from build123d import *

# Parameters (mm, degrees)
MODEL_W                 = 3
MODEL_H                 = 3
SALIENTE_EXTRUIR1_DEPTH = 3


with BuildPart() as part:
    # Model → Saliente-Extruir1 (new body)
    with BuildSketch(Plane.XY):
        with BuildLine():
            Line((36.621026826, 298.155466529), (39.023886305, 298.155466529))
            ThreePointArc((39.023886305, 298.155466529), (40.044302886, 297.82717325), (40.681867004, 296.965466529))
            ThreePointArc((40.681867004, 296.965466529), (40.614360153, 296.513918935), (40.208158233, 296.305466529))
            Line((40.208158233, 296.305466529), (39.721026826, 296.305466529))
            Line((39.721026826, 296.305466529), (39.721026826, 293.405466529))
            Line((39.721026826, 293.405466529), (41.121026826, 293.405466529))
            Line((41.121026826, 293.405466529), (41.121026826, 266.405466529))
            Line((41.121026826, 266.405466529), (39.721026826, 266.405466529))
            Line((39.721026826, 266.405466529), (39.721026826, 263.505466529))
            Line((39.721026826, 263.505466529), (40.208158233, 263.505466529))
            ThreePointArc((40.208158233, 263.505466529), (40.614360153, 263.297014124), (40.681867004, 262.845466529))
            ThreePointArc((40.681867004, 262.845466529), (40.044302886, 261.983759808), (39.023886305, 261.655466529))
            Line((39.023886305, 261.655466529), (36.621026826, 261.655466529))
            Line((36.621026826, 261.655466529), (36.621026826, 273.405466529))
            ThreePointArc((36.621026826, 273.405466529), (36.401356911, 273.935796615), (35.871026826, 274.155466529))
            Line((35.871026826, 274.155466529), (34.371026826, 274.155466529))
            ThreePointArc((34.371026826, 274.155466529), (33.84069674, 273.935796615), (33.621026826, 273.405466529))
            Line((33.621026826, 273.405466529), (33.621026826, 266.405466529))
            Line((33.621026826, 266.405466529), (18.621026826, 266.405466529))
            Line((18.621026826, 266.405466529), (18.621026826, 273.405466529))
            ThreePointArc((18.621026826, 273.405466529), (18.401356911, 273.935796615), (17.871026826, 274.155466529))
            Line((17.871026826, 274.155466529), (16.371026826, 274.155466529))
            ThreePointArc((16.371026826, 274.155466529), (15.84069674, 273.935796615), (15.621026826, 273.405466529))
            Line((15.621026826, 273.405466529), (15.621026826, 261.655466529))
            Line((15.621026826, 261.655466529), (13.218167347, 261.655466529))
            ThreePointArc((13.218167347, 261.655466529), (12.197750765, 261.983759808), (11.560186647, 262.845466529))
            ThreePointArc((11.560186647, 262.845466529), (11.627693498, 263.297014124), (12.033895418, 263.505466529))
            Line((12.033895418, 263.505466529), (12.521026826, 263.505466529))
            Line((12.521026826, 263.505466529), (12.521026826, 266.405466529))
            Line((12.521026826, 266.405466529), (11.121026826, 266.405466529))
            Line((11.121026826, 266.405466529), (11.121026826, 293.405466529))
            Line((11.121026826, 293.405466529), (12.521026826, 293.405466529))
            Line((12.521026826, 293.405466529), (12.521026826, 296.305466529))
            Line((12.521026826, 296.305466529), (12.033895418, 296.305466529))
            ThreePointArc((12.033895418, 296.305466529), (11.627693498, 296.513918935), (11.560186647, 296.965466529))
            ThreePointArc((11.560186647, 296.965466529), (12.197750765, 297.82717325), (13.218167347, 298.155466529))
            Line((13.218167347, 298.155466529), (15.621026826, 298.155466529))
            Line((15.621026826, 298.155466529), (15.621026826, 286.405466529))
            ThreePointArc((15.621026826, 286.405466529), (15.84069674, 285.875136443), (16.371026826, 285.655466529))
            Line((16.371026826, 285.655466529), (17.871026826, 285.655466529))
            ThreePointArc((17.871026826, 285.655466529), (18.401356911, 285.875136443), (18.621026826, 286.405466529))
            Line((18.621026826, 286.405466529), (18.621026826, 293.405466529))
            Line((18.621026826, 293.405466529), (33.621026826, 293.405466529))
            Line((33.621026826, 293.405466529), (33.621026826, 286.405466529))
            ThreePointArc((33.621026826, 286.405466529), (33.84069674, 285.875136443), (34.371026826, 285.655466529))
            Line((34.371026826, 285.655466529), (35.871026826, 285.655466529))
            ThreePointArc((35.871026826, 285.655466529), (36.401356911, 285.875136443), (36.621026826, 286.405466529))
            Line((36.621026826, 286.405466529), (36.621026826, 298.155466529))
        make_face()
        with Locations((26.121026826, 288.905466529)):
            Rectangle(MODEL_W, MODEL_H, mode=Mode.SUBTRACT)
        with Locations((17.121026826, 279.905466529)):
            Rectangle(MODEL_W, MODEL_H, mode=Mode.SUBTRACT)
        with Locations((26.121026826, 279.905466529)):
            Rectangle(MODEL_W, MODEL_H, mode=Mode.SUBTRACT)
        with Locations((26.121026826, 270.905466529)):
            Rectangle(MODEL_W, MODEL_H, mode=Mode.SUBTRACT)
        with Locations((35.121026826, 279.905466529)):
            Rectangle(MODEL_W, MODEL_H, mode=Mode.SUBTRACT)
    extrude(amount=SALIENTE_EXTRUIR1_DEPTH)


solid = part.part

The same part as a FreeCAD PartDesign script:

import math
import FreeCAD as App
import Part
import Sketcher
Q = App.Units.Quantity

doc = App.newDocument("Part")
params = doc.addObject("Spreadsheet::Sheet", "Params")
for row, (alias, value) in enumerate([
    ("sketch1_radius", "0.5 mm"),
    ("sketch1_width", "15 mm"),
    ("sketch1_width2", "3 mm"),
    ("sketch1_height", "7 mm"),
    ("sketch1_height2", "27 mm"),
    ("pad1_length", "3 mm"),
], start=1):
    params.set(f"A{row}", alias)
    params.set(f"B{row}", "=" + value)
    params.setAlias(f"B{row}", alias)

body = doc.addObject("PartDesign::Body", "Body")

sketch1 = body.newObject("Sketcher::SketchObject", "Sketch")
sketch1.AttachmentSupport = (doc.getObject("XY_Plane"), [""])
sketch1.MapMode = "FlatFace"
sketch1.addGeometry(Part.LineSegment(App.Vector(39.023886, 298.155467, 0), App.Vector(36.621027, 298.155467, 0)), False)
sketch1.addGeometry(Part.LineSegment(App.Vector(36.621027, 298.155467, 0), App.Vector(36.621027, 286.405467, 0)), False)
sketch1.addGeometry(Part.ArcOfCircle(Part.Circle(App.Vector(35.871027, 286.405467, 0), App.Vector(0, 0, 1), 0.75), math.radians(-90), math.radians(0)), False)
sketch1.addGeometry(Part.LineSegment(App.Vector(35.871027, 285.655467, 0), App.Vector(34.371027, 285.655467, 0)), False)
sketch1.addGeometry(Part.ArcOfCircle(Part.Circle(App.Vector(34.371027, 286.405467, 0), App.Vector(0, 0, 1), 0.75), math.radians(180), math.radians(270)), False)
sketch1.addGeometry(Part.LineSegment(App.Vector(33.621027, 286.405467, 0), App.Vector(33.621027, 293.405467, 0)), False)
sketch1.addGeometry(Part.LineSegment(App.Vector(33.621027, 293.405467, 0), App.Vector(18.621027, 293.405467, 0)), False)
sketch1.addGeometry(Part.LineSegment(App.Vector(18.621027, 293.405467, 0), App.Vector(18.621027, 286.405467, 0)), False)
sketch1.addGeometry(Part.ArcOfCircle(Part.Circle(App.Vector(17.871027, 286.405467, 0), App.Vector(0, 0, 1), 0.75), math.radians(-90), math.radians(0)), False)
sketch1.addGeometry(Part.LineSegment(App.Vector(17.871027, 285.655467, 0), App.Vector(16.371027, 285.655467, 0)), False)
sketch1.addGeometry(Part.ArcOfCircle(Part.Circle(App.Vector(16.371027, 286.405467, 0), App.Vector(0, 0, 1), 0.75), math.radians(180), math.radians(270)), False)
sketch1.addGeometry(Part.LineSegment(App.Vector(15.621027, 286.405467, 0), App.Vector(15.621027, 298.155467, 0)), False)
sketch1.addGeometry(Part.LineSegment(App.Vector(15.621027, 298.155467, 0), App.Vector(13.218167, 298.155467, 0)), False)
sketch1.addGeometry(Part.ArcOfCircle(Part.Circle(App.Vector(13.218167, 296.405467, 0), App.Vector(0, 0, 1), 1.75), math.radians(90), math.radians(161.337075)), False)
sketch1.addGeometry(Part.ArcOfCircle(Part.Circle(App.Vector(12.033895, 296.805467, 0), App.Vector(0, 0, 1), 0.5), math.radians(161.337075), math.radians(270)), False)
sketch1.addGeometry(Part.LineSegment(App.Vector(12.033895, 296.305467, 0), App.Vector(12.521027, 296.305467, 0)), False)
sketch1.addGeometry(Part.LineSegment(App.Vector(12.521027, 296.305467, 0), App.Vector(12.521027, 293.405467, 0)), False)
sketch1.addGeometry(Part.LineSegment(App.Vector(12.521027, 293.405467, 0), App.Vector(11.121027, 293.405467, 0)), False)
sketch1.addGeometry(Part.LineSegment(App.Vector(11.121027, 293.405467, 0), App.Vector(11.121027, 266.405467, 0)), False)
sketch1.addGeometry(Part.LineSegment(App.Vector(11.121027, 266.405467, 0), App.Vector(12.521027, 266.405467, 0)), False)
sketch1.addGeometry(Part.LineSegment(App.Vector(12.521027, 266.405467, 0), App.Vector(12.521027, 263.505467, 0)), False)
sketch1.addGeometry(Part.LineSegment(App.Vector(12.521027, 263.505467, 0), App.Vector(12.033895, 263.505467, 0)), False)
sketch1.addGeometry(Part.ArcOfCircle(Part.Circle(App.Vector(12.033895, 263.005467, 0), App.Vector(0, 0, 1), 0.5), math.radians(90), math.radians(198.662925)), False)
sketch1.addGeometry(Part.ArcOfCircle(Part.Circle(App.Vector(13.218167, 263.405467, 0), App.Vector(0, 0, 1), 1.75), math.radians(-161.337075), math.radians(-90)), False)
sketch1.addGeometry(Part.LineSegment(App.Vector(13.218167, 261.655467, 0), App.Vector(15.621027, 261.655467, 0)), False)
sketch1.addGeometry(Part.LineSegment(App.Vector(15.621027, 261.655467, 0), App.Vector(15.621027, 273.405467, 0)), False)
sketch1.addGeometry(Part.ArcOfCircle(Part.Circle(App.Vector(16.371027, 273.405467, 0), App.Vector(0, 0, 1), 0.75), math.radians(90), math.radians(180)), False)
sketch1.addGeometry(Part.LineSegment(App.Vector(16.371027, 274.155467, 0), App.Vector(17.871027, 274.155467, 0)), False)
sketch1.addGeometry(Part.ArcOfCircle(Part.Circle(App.Vector(17.871027, 273.405467, 0), App.Vector(0, 0, 1), 0.75), math.radians(0), math.radians(90)), False)
sketch1.addGeometry(Part.LineSegment(App.Vector(18.621027, 273.405467, 0), App.Vector(18.621027, 266.405467, 0)), False)
sketch1.addGeometry(Part.LineSegment(App.Vector(18.621027, 266.405467, 0), App.Vector(33.621027, 266.405467, 0)), False)
sketch1.addGeometry(Part.LineSegment(App.Vector(33.621027, 266.405467, 0), App.Vector(33.621027, 273.405467, 0)), False)
sketch1.addGeometry(Part.ArcOfCircle(Part.Circle(App.Vector(34.371027, 273.405467, 0), App.Vector(0, 0, 1), 0.75), math.radians(90), math.radians(180)), False)
sketch1.addGeometry(Part.LineSegment(App.Vector(34.371027, 274.155467, 0), App.Vector(35.871027, 274.155467, 0)), False)
sketch1.addGeometry(Part.ArcOfCircle(Part.Circle(App.Vector(35.871027, 273.405467, 0), App.Vector(0, 0, 1), 0.75), math.radians(0), math.radians(90)), False)
sketch1.addGeometry(Part.LineSegment(App.Vector(36.621027, 273.405467, 0), App.Vector(36.621027, 261.655467, 0)), False)
sketch1.addGeometry(Part.LineSegment(App.Vector(36.621027, 261.655467, 0), App.Vector(39.023886, 261.655467, 0)), False)
sketch1.addGeometry(Part.ArcOfCircle(Part.Circle(App.Vector(39.023886, 263.405467, 0), App.Vector(0, 0, 1), 1.75), math.radians(-90), math.radians(-18.662925)), False)
sketch1.addGeometry(Part.ArcOfCircle(Part.Circle(App.Vector(40.208158, 263.005467, 0), App.Vector(0, 0, 1), 0.5), math.radians(-18.662925), math.radians(90)), False)
sketch1.addGeometry(Part.LineSegment(App.Vector(40.208158, 263.505467, 0), App.Vector(39.721027, 263.505467, 0)), False)
sketch1.addGeometry(Part.LineSegment(App.Vector(39.721027, 263.505467, 0), App.Vector(39.721027, 266.405467, 0)), False)
sketch1.addGeometry(Part.LineSegment(App.Vector(39.721027, 266.405467, 0), App.Vector(41.121027, 266.405467, 0)), False)
sketch1.addGeometry(Part.LineSegment(App.Vector(41.121027, 266.405467, 0), App.Vector(41.121027, 293.405467, 0)), False)
sketch1.addGeometry(Part.LineSegment(App.Vector(41.121027, 293.405467, 0), App.Vector(39.721027, 293.405467, 0)), False)
sketch1.addGeometry(Part.LineSegment(App.Vector(39.721027, 293.405467, 0), App.Vector(39.721027, 296.305467, 0)), False)
sketch1.addGeometry(Part.LineSegment(App.Vector(39.721027, 296.305467, 0), App.Vector(40.208158, 296.305467, 0)), False)
sketch1.addGeometry(Part.ArcOfCircle(Part.Circle(App.Vector(40.208158, 296.805467, 0), App.Vector(0, 0, 1), 0.5), math.radians(-90), math.radians(18.662925)), False)
sketch1.addGeometry(Part.ArcOfCircle(Part.Circle(App.Vector(39.023886, 296.405467, 0), App.Vector(0, 0, 1), 1.75), math.radians(18.662925), math.radians(90)), False)
sketch1.addGeometry(Part.LineSegment(App.Vector(24.621027, 269.405467, 0), App.Vector(24.621027, 272.405467, 0)), False)
sketch1.addGeometry(Part.LineSegment(App.Vector(24.621027, 272.405467, 0), App.Vector(27.621027, 272.405467, 0)), False)
sketch1.addGeometry(Part.LineSegment(App.Vector(27.621027, 272.405467, 0), App.Vector(27.621027, 269.405467, 0)), False)
sketch1.addGeometry(Part.LineSegment(App.Vector(27.621027, 269.405467, 0), App.Vector(24.621027, 269.405467, 0)), False)
sketch1.addGeometry(Part.LineSegment(App.Vector(33.621027, 278.405467, 0), App.Vector(33.621027, 281.405467, 0)), False)
sketch1.addGeometry(Part.LineSegment(App.Vector(33.621027, 281.405467, 0), App.Vector(36.621027, 281.405467, 0)), False)
sketch1.addGeometry(Part.LineSegment(App.Vector(36.621027, 281.405467, 0), App.Vector(36.621027, 278.405467, 0)), False)
sketch1.addGeometry(Part.LineSegment(App.Vector(36.621027, 278.405467, 0), App.Vector(33.621027, 278.405467, 0)), False)
sketch1.addGeometry(Part.LineSegment(App.Vector(24.621027, 278.405467, 0), App.Vector(24.621027, 281.405467, 0)), False)
sketch1.addGeometry(Part.LineSegment(App.Vector(24.621027, 281.405467, 0), App.Vector(27.621027, 281.405467, 0)), False)
sketch1.addGeometry(Part.LineSegment(App.Vector(27.621027, 281.405467, 0), App.Vector(27.621027, 278.405467, 0)), False)
sketch1.addGeometry(Part.LineSegment(App.Vector(27.621027, 278.405467, 0), App.Vector(24.621027, 278.405467, 0)), False)
sketch1.addGeometry(Part.LineSegment(App.Vector(24.621027, 287.405467, 0), App.Vector(24.621027, 290.405467, 0)), False)
sketch1.addGeometry(Part.LineSegment(App.Vector(24.621027, 290.405467, 0), App.Vector(27.621027, 290.405467, 0)), False)
sketch1.addGeometry(Part.LineSegment(App.Vector(27.621027, 290.405467, 0), App.Vector(27.621027, 287.405467, 0)), False)
sketch1.addGeometry(Part.LineSegment(App.Vector(27.621027, 287.405467, 0), App.Vector(24.621027, 287.405467, 0)), False)
sketch1.addGeometry(Part.LineSegment(App.Vector(15.621027, 278.405467, 0), App.Vector(15.621027, 281.405467, 0)), False)
sketch1.addGeometry(Part.LineSegment(App.Vector(15.621027, 281.405467, 0), App.Vector(18.621027, 281.405467, 0)), False)
sketch1.addGeometry(Part.LineSegment(App.Vector(18.621027, 281.405467, 0), App.Vector(18.621027, 278.405467, 0)), False)
sketch1.addGeometry(Part.LineSegment(App.Vector(18.621027, 278.405467, 0), App.Vector(15.621027, 278.405467, 0)), False)
sketch1.addConstraint(Sketcher.Constraint("Coincident", 0, 2, 1, 1))
sketch1.addConstraint(Sketcher.Constraint("Tangent", 1, 2, 2, 2))
sketch1.addConstraint(Sketcher.Constraint("Tangent", 2, 1, 3, 1))
sketch1.addConstraint(Sketcher.Constraint("Tangent", 3, 2, 4, 2))
sketch1.addConstraint(Sketcher.Constraint("Tangent", 4, 1, 5, 1))
sketch1.addConstraint(Sketcher.Constraint("Coincident", 5, 2, 6, 1))
sketch1.addConstraint(Sketcher.Constraint("Coincident", 6, 2, 7, 1))
sketch1.addConstraint(Sketcher.Constraint("Tangent", 7, 2, 8, 2))
sketch1.addConstraint(Sketcher.Constraint("Tangent", 8, 1, 9, 1))
sketch1.addConstraint(Sketcher.Constraint("Tangent", 9, 2, 10, 2))
sketch1.addConstraint(Sketcher.Constraint("Tangent", 10, 1, 11, 1))
sketch1.addConstraint(Sketcher.Constraint("Coincident", 11, 2, 12, 1))
sketch1.addConstraint(Sketcher.Constraint("Tangent", 12, 2, 13, 1))
sketch1.addConstraint(Sketcher.Constraint("Tangent", 13, 2, 14, 1))
sketch1.addConstraint(Sketcher.Constraint("Tangent", 14, 2, 15, 1))
sketch1.addConstraint(Sketcher.Constraint("Coincident", 15, 2, 16, 1))
sketch1.addConstraint(Sketcher.Constraint("Coincident", 16, 2, 17, 1))
sketch1.addConstraint(Sketcher.Constraint("Coincident", 17, 2, 18, 1))
sketch1.addConstraint(Sketcher.Constraint("Coincident", 18, 2, 19, 1))
sketch1.addConstraint(Sketcher.Constraint("Coincident", 19, 2, 20, 1))
sketch1.addConstraint(Sketcher.Constraint("Coincident", 20, 2, 21, 1))
sketch1.addConstraint(Sketcher.Constraint("Tangent", 21, 2, 22, 1))
sketch1.addConstraint(Sketcher.Constraint("Tangent", 22, 2, 23, 1))
sketch1.addConstraint(Sketcher.Constraint("Tangent", 23, 2, 24, 1))
sketch1.addConstraint(Sketcher.Constraint("Coincident", 24, 2, 25, 1))
sketch1.addConstraint(Sketcher.Constraint("Tangent", 25, 2, 26, 2))
sketch1.addConstraint(Sketcher.Constraint("Tangent", 26, 1, 27, 1))
sketch1.addConstraint(Sketcher.Constraint("Tangent", 27, 2, 28, 2))
sketch1.addConstraint(Sketcher.Constraint("Tangent", 28, 1, 29, 1))
sketch1.addConstraint(Sketcher.Constraint("Coincident", 29, 2, 30, 1))
sketch1.addConstraint(Sketcher.Constraint("Coincident", 30, 2, 31, 1))
sketch1.addConstraint(Sketcher.Constraint("Tangent", 31, 2, 32, 2))
sketch1.addConstraint(Sketcher.Constraint("Tangent", 32, 1, 33, 1))
sketch1.addConstraint(Sketcher.Constraint("Tangent", 33, 2, 34, 2))
sketch1.addConstraint(Sketcher.Constraint("Tangent", 34, 1, 35, 1))
sketch1.addConstraint(Sketcher.Constraint("Coincident", 35, 2, 36, 1))
sketch1.addConstraint(Sketcher.Constraint("Tangent", 36, 2, 37, 1))
sketch1.addConstraint(Sketcher.Constraint("Tangent", 37, 2, 38, 1))
sketch1.addConstraint(Sketcher.Constraint("Tangent", 38, 2, 39, 1))
sketch1.addConstraint(Sketcher.Constraint("Coincident", 39, 2, 40, 1))
sketch1.addConstraint(Sketcher.Constraint("Coincident", 40, 2, 41, 1))
sketch1.addConstraint(Sketcher.Constraint("Coincident", 41, 2, 42, 1))
sketch1.addConstraint(Sketcher.Constraint("Coincident", 42, 2, 43, 1))
sketch1.addConstraint(Sketcher.Constraint("Coincident", 43, 2, 44, 1))
sketch1.addConstraint(Sketcher.Constraint("Coincident", 44, 2, 45, 1))
sketch1.addConstraint(Sketcher.Constraint("Tangent", 45, 2, 46, 1))
sketch1.addConstraint(Sketcher.Constraint("Tangent", 46, 2, 47, 1))
sketch1.addConstraint(Sketcher.Constraint("Tangent", 47, 2, 0, 1))
sketch1.addConstraint(Sketcher.Constraint("Coincident", 48, 2, 49, 1))
sketch1.addConstraint(Sketcher.Constraint("Coincident", 49, 2, 50, 1))
sketch1.addConstraint(Sketcher.Constraint("Coincident", 50, 2, 51, 1))
sketch1.addConstraint(Sketcher.Constraint("Coincident", 51, 2, 48, 1))
sketch1.addConstraint(Sketcher.Constraint("Coincident", 52, 2, 53, 1))
sketch1.addConstraint(Sketcher.Constraint("Coincident", 53, 2, 54, 1))
sketch1.addConstraint(Sketcher.Constraint("Coincident", 54, 2, 55, 1))
sketch1.addConstraint(Sketcher.Constraint("Coincident", 55, 2, 52, 1))
sketch1.addConstraint(Sketcher.Constraint("Coincident", 56, 2, 57, 1))
sketch1.addConstraint(Sketcher.Constraint("Coincident", 57, 2, 58, 1))
sketch1.addConstraint(Sketcher.Constraint("Coincident", 58, 2, 59, 1))
sketch1.addConstraint(Sketcher.Constraint("Coincident", 59, 2, 56, 1))
sketch1.addConstraint(Sketcher.Constraint("Coincident", 60, 2, 61, 1))
sketch1.addConstraint(Sketcher.Constraint("Coincident", 61, 2, 62, 1))
sketch1.addConstraint(Sketcher.Constraint("Coincident", 62, 2, 63, 1))
sketch1.addConstraint(Sketcher.Constraint("Coincident", 63, 2, 60, 1))
sketch1.addConstraint(Sketcher.Constraint("Coincident", 64, 2, 65, 1))
sketch1.addConstraint(Sketcher.Constraint("Coincident", 65, 2, 66, 1))
sketch1.addConstraint(Sketcher.Constraint("Coincident", 66, 2, 67, 1))
sketch1.addConstraint(Sketcher.Constraint("Coincident", 67, 2, 64, 1))
sketch1.addConstraint(Sketcher.Constraint("Horizontal", 0))
sketch1.addConstraint(Sketcher.Constraint("Vertical", 1))
sketch1.addConstraint(Sketcher.Constraint("Horizontal", 3))
sketch1.addConstraint(Sketcher.Constraint("Vertical", 5))
sketch1.addConstraint(Sketcher.Constraint("Horizontal", 6))
sketch1.addConstraint(Sketcher.Constraint("Vertical", 7))
sketch1.addConstraint(Sketcher.Constraint("Horizontal", 9))
sketch1.addConstraint(Sketcher.Constraint("Vertical", 11))
sketch1.addConstraint(Sketcher.Constraint("Horizontal", 12))
sketch1.addConstraint(Sketcher.Constraint("Horizontal", 15))
sketch1.addConstraint(Sketcher.Constraint("Vertical", 16))
sketch1.addConstraint(Sketcher.Constraint("Horizontal", 17))
sketch1.addConstraint(Sketcher.Constraint("Vertical", 18))
sketch1.addConstraint(Sketcher.Constraint("Horizontal", 19))
sketch1.addConstraint(Sketcher.Constraint("Vertical", 20))
sketch1.addConstraint(Sketcher.Constraint("Horizontal", 21))
sketch1.addConstraint(Sketcher.Constraint("Horizontal", 24))
sketch1.addConstraint(Sketcher.Constraint("Vertical", 25))
sketch1.addConstraint(Sketcher.Constraint("Horizontal", 27))
sketch1.addConstraint(Sketcher.Constraint("Vertical", 29))
sketch1.addConstraint(Sketcher.Constraint("Horizontal", 30))
sketch1.addConstraint(Sketcher.Constraint("Vertical", 31))
sketch1.addConstraint(Sketcher.Constraint("Horizontal", 33))
sketch1.addConstraint(Sketcher.Constraint("Vertical", 35))
sketch1.addConstraint(Sketcher.Constraint("Horizontal", 36))
sketch1.addConstraint(Sketcher.Constraint("Horizontal", 39))
sketch1.addConstraint(Sketcher.Constraint("Vertical", 40))
sketch1.addConstraint(Sketcher.Constraint("Horizontal", 41))
sketch1.addConstraint(Sketcher.Constraint("Vertical", 42))
sketch1.addConstraint(Sketcher.Constraint("Horizontal", 43))
sketch1.addConstraint(Sketcher.Constraint("Vertical", 44))
sketch1.addConstraint(Sketcher.Constraint("Horizontal", 45))
sketch1.addConstraint(Sketcher.Constraint("Vertical", 48))
sketch1.addConstraint(Sketcher.Constraint("Horizontal", 49))
sketch1.addConstraint(Sketcher.Constraint("Vertical", 50))
sketch1.addConstraint(Sketcher.Constraint("Horizontal", 51))
sketch1.addConstraint(Sketcher.Constraint("Vertical", 52))
sketch1.addConstraint(Sketcher.Constraint("Horizontal", 53))
sketch1.addConstraint(Sketcher.Constraint("Vertical", 54))
sketch1.addConstraint(Sketcher.Constraint("Horizontal", 55))
sketch1.addConstraint(Sketcher.Constraint("Vertical", 56))
sketch1.addConstraint(Sketcher.Constraint("Horizontal", 57))
sketch1.addConstraint(Sketcher.Constraint("Vertical", 58))
sketch1.addConstraint(Sketcher.Constraint("Horizontal", 59))
sketch1.addConstraint(Sketcher.Constraint("Vertical", 60))
sketch1.addConstraint(Sketcher.Constraint("Horizontal", 61))
sketch1.addConstraint(Sketcher.Constraint("Vertical", 62))
sketch1.addConstraint(Sketcher.Constraint("Horizontal", 63))
sketch1.addConstraint(Sketcher.Constraint("Vertical", 64))
sketch1.addConstraint(Sketcher.Constraint("Horizontal", 65))
sketch1.addConstraint(Sketcher.Constraint("Vertical", 66))
sketch1.addConstraint(Sketcher.Constraint("Horizontal", 67))
sketch1.addConstraint(Sketcher.Constraint("Equal", 2, 4))
sketch1.addConstraint(Sketcher.Constraint("Equal", 4, 8))
sketch1.addConstraint(Sketcher.Constraint("Equal", 8, 10))
sketch1.addConstraint(Sketcher.Constraint("Equal", 14, 22))
sketch1.addConstraint(Sketcher.Constraint("Equal", 13, 23))
sketch1.addConstraint(Sketcher.Constraint("Equal", 10, 26))
sketch1.addConstraint(Sketcher.Constraint("Equal", 26, 28))
sketch1.addConstraint(Sketcher.Constraint("Equal", 28, 32))
sketch1.addConstraint(Sketcher.Constraint("Equal", 32, 34))
sketch1.addConstraint(Sketcher.Constraint("Equal", 23, 37))
sketch1.addConstraint(Sketcher.Constraint("Equal", 22, 38))
sketch1.addConstraint(Sketcher.Constraint("Equal", 38, 46))
sketch1.addConstraint(Sketcher.Constraint("Equal", 37, 47))
sketch1.addConstraint(Sketcher.Constraint("Horizontal", 4, 3, 8, 3))
sketch1.addConstraint(Sketcher.Constraint("Horizontal", 28, 3, 32, 3))
sketch1.addConstraint(Sketcher.Constraint("Horizontal", 23, 3, 37, 3))
sketch1.addConstraint(Sketcher.Constraint("Horizontal", 22, 3, 38, 3))
sketch1.addConstraint(Sketcher.Constraint("Horizontal", 14, 3, 46, 3))
sketch1.addConstraint(Sketcher.Constraint("Horizontal", 13, 3, 47, 3))
sketch1.addConstraint(Sketcher.Constraint("Horizontal", 6, 2, 16, 2))
sketch1.addConstraint(Sketcher.Constraint("Horizontal", 19, 2, 29, 2))
sketch1.addConstraint(Sketcher.Constraint("Horizontal", 30, 2, 40, 2))
sketch1.addConstraint(Sketcher.Constraint("Horizontal", 17, 2, 42, 2))
sketch1.addConstraint(Sketcher.Constraint("Horizontal", 53, 2, 56, 2))
sketch1.addConstraint(Sketcher.Constraint("Horizontal", 55, 2, 58, 2))
sketch1.addConstraint(Sketcher.Constraint("Horizontal", 57, 2, 64, 2))
sketch1.addConstraint(Sketcher.Constraint("Horizontal", 59, 2, 66, 2))
sketch1.addConstraint(Sketcher.Constraint("Vertical", 14, 3, 22, 3))
sketch1.addConstraint(Sketcher.Constraint("Vertical", 13, 3, 23, 3))
sketch1.addConstraint(Sketcher.Constraint("Vertical", 10, 3, 26, 3))
sketch1.addConstraint(Sketcher.Constraint("Vertical", 8, 3, 28, 3))
sketch1.addConstraint(Sketcher.Constraint("Vertical", 4, 3, 32, 3))
sketch1.addConstraint(Sketcher.Constraint("Vertical", 2, 3, 34, 3))
sketch1.addConstraint(Sketcher.Constraint("Vertical", 38, 3, 46, 3))
sketch1.addConstraint(Sketcher.Constraint("Vertical", 16, 2, 19, 2))
sketch1.addConstraint(Sketcher.Constraint("Vertical", 40, 2, 43, 2))
sketch1.addConstraint(Sketcher.Constraint("Vertical", 31, 2, 52, 2))
sketch1.addConstraint(Sketcher.Constraint("Vertical", 35, 2, 53, 2))
sketch1.addConstraint(Sketcher.Constraint("Vertical", 51, 2, 56, 2))
sketch1.addConstraint(Sketcher.Constraint("Vertical", 50, 2, 57, 2))
sketch1.addConstraint(Sketcher.Constraint("Vertical", 59, 2, 60, 2))
sketch1.addConstraint(Sketcher.Constraint("Vertical", 58, 2, 61, 2))
sketch1.addConstraint(Sketcher.Constraint("Vertical", 25, 2, 64, 2))
sketch1.addConstraint(Sketcher.Constraint("Vertical", 29, 2, 65, 2))
sketch1.addConstraint(Sketcher.Constraint("Equal", 3, 9))
sketch1.addConstraint(Sketcher.Constraint("Equal", 0, 12))
sketch1.addConstraint(Sketcher.Constraint("Equal", 21, 39))
sketch1.addConstraint(Sketcher.Constraint("Equal", 19, 41))
sketch1.addConstraint(Sketcher.Constraint("Equal", 51, 53))
sketch1.addConstraint(Sketcher.Constraint("Equal", 16, 20))
sketch1.addConstraint(Sketcher.Constraint("Equal", 11, 25))
sketch1.addConstraint(Sketcher.Constraint("Equal", 67, 48))
sketch1.addConstraint(Sketcher.Constraint("Equal", 50, 52))
sketch1.addConstraint(Sketcher.Constraint("Equal", 58, 60))
sketch1.addConstraint(Sketcher.Constraint("Radius", 14, Q("0.5 mm")))
sketch1.addConstraint(Sketcher.Constraint("DistanceX", 6, 2, 6, 1, Q("15 mm")))
sketch1.addConstraint(Sketcher.Constraint("DistanceX", 49, 1, 49, 2, Q("3 mm")))
sketch1.addConstraint(Sketcher.Constraint("DistanceY", 5, 1, 5, 2, Q("7 mm")))
sketch1.addConstraint(Sketcher.Constraint("DistanceY", 18, 2, 18, 1, Q("27 mm")))
sketch1.addConstraint(Sketcher.Constraint("Radius", 2, Q("0.75 mm")))
sketch1.addConstraint(Sketcher.Constraint("Radius", 13, Q("1.75 mm")))
sketch1.addConstraint(Sketcher.Constraint("DistanceX", 17, 2, 17, 1, Q("1.4 mm")))
sketch1.addConstraint(Sketcher.Constraint("DistanceY", 16, 2, 16, 1, Q("2.9 mm")))
sketch1.addConstraint(Sketcher.Constraint("DistanceY", 1, 2, 1, 1, Q("11.75 mm")))
sketch1.addConstraint(Sketcher.Constraint("DistanceX", 0, 2, 0, 1, Q("2.402859 mm")))
sketch1.addConstraint(Sketcher.Constraint("DistanceX", 15, 1, 15, 2, Q("0.487131 mm")))
sketch1.addConstraint(Sketcher.Constraint("DistanceX", -1, 1, 38, 3, Q("40.208158 mm")))
sketch1.addConstraint(Sketcher.Constraint("DistanceY", -1, 1, 2, 3, Q("286.405467 mm")))
sketch1.addConstraint(Sketcher.Constraint("DistanceX", -1, 1, 48, 2, Q("24.621027 mm")))
sketch1.addConstraint(Sketcher.Constraint("DistanceY", -1, 1, 48, 2, Q("272.405467 mm")))
sketch1.addConstraint(Sketcher.Constraint("DistanceY", -1, 1, 52, 2, Q("281.405467 mm")))
sketch1.addConstraint(Sketcher.Constraint("DistanceY", -1, 1, 60, 2, Q("290.405467 mm")))
sketch1.setExpression("Constraints[174]", "Params.sketch1_radius")
sketch1.setExpression("Constraints[175]", "Params.sketch1_width")
sketch1.setExpression("Constraints[176]", "Params.sketch1_width2")
sketch1.setExpression("Constraints[177]", "Params.sketch1_height")
sketch1.setExpression("Constraints[178]", "Params.sketch1_height2")
pad1 = body.newObject("PartDesign::Pad", "Pad")
pad1.Profile = sketch1
pad1.setExpression("Length", "Params.pad1_length")

doc.recompute()
